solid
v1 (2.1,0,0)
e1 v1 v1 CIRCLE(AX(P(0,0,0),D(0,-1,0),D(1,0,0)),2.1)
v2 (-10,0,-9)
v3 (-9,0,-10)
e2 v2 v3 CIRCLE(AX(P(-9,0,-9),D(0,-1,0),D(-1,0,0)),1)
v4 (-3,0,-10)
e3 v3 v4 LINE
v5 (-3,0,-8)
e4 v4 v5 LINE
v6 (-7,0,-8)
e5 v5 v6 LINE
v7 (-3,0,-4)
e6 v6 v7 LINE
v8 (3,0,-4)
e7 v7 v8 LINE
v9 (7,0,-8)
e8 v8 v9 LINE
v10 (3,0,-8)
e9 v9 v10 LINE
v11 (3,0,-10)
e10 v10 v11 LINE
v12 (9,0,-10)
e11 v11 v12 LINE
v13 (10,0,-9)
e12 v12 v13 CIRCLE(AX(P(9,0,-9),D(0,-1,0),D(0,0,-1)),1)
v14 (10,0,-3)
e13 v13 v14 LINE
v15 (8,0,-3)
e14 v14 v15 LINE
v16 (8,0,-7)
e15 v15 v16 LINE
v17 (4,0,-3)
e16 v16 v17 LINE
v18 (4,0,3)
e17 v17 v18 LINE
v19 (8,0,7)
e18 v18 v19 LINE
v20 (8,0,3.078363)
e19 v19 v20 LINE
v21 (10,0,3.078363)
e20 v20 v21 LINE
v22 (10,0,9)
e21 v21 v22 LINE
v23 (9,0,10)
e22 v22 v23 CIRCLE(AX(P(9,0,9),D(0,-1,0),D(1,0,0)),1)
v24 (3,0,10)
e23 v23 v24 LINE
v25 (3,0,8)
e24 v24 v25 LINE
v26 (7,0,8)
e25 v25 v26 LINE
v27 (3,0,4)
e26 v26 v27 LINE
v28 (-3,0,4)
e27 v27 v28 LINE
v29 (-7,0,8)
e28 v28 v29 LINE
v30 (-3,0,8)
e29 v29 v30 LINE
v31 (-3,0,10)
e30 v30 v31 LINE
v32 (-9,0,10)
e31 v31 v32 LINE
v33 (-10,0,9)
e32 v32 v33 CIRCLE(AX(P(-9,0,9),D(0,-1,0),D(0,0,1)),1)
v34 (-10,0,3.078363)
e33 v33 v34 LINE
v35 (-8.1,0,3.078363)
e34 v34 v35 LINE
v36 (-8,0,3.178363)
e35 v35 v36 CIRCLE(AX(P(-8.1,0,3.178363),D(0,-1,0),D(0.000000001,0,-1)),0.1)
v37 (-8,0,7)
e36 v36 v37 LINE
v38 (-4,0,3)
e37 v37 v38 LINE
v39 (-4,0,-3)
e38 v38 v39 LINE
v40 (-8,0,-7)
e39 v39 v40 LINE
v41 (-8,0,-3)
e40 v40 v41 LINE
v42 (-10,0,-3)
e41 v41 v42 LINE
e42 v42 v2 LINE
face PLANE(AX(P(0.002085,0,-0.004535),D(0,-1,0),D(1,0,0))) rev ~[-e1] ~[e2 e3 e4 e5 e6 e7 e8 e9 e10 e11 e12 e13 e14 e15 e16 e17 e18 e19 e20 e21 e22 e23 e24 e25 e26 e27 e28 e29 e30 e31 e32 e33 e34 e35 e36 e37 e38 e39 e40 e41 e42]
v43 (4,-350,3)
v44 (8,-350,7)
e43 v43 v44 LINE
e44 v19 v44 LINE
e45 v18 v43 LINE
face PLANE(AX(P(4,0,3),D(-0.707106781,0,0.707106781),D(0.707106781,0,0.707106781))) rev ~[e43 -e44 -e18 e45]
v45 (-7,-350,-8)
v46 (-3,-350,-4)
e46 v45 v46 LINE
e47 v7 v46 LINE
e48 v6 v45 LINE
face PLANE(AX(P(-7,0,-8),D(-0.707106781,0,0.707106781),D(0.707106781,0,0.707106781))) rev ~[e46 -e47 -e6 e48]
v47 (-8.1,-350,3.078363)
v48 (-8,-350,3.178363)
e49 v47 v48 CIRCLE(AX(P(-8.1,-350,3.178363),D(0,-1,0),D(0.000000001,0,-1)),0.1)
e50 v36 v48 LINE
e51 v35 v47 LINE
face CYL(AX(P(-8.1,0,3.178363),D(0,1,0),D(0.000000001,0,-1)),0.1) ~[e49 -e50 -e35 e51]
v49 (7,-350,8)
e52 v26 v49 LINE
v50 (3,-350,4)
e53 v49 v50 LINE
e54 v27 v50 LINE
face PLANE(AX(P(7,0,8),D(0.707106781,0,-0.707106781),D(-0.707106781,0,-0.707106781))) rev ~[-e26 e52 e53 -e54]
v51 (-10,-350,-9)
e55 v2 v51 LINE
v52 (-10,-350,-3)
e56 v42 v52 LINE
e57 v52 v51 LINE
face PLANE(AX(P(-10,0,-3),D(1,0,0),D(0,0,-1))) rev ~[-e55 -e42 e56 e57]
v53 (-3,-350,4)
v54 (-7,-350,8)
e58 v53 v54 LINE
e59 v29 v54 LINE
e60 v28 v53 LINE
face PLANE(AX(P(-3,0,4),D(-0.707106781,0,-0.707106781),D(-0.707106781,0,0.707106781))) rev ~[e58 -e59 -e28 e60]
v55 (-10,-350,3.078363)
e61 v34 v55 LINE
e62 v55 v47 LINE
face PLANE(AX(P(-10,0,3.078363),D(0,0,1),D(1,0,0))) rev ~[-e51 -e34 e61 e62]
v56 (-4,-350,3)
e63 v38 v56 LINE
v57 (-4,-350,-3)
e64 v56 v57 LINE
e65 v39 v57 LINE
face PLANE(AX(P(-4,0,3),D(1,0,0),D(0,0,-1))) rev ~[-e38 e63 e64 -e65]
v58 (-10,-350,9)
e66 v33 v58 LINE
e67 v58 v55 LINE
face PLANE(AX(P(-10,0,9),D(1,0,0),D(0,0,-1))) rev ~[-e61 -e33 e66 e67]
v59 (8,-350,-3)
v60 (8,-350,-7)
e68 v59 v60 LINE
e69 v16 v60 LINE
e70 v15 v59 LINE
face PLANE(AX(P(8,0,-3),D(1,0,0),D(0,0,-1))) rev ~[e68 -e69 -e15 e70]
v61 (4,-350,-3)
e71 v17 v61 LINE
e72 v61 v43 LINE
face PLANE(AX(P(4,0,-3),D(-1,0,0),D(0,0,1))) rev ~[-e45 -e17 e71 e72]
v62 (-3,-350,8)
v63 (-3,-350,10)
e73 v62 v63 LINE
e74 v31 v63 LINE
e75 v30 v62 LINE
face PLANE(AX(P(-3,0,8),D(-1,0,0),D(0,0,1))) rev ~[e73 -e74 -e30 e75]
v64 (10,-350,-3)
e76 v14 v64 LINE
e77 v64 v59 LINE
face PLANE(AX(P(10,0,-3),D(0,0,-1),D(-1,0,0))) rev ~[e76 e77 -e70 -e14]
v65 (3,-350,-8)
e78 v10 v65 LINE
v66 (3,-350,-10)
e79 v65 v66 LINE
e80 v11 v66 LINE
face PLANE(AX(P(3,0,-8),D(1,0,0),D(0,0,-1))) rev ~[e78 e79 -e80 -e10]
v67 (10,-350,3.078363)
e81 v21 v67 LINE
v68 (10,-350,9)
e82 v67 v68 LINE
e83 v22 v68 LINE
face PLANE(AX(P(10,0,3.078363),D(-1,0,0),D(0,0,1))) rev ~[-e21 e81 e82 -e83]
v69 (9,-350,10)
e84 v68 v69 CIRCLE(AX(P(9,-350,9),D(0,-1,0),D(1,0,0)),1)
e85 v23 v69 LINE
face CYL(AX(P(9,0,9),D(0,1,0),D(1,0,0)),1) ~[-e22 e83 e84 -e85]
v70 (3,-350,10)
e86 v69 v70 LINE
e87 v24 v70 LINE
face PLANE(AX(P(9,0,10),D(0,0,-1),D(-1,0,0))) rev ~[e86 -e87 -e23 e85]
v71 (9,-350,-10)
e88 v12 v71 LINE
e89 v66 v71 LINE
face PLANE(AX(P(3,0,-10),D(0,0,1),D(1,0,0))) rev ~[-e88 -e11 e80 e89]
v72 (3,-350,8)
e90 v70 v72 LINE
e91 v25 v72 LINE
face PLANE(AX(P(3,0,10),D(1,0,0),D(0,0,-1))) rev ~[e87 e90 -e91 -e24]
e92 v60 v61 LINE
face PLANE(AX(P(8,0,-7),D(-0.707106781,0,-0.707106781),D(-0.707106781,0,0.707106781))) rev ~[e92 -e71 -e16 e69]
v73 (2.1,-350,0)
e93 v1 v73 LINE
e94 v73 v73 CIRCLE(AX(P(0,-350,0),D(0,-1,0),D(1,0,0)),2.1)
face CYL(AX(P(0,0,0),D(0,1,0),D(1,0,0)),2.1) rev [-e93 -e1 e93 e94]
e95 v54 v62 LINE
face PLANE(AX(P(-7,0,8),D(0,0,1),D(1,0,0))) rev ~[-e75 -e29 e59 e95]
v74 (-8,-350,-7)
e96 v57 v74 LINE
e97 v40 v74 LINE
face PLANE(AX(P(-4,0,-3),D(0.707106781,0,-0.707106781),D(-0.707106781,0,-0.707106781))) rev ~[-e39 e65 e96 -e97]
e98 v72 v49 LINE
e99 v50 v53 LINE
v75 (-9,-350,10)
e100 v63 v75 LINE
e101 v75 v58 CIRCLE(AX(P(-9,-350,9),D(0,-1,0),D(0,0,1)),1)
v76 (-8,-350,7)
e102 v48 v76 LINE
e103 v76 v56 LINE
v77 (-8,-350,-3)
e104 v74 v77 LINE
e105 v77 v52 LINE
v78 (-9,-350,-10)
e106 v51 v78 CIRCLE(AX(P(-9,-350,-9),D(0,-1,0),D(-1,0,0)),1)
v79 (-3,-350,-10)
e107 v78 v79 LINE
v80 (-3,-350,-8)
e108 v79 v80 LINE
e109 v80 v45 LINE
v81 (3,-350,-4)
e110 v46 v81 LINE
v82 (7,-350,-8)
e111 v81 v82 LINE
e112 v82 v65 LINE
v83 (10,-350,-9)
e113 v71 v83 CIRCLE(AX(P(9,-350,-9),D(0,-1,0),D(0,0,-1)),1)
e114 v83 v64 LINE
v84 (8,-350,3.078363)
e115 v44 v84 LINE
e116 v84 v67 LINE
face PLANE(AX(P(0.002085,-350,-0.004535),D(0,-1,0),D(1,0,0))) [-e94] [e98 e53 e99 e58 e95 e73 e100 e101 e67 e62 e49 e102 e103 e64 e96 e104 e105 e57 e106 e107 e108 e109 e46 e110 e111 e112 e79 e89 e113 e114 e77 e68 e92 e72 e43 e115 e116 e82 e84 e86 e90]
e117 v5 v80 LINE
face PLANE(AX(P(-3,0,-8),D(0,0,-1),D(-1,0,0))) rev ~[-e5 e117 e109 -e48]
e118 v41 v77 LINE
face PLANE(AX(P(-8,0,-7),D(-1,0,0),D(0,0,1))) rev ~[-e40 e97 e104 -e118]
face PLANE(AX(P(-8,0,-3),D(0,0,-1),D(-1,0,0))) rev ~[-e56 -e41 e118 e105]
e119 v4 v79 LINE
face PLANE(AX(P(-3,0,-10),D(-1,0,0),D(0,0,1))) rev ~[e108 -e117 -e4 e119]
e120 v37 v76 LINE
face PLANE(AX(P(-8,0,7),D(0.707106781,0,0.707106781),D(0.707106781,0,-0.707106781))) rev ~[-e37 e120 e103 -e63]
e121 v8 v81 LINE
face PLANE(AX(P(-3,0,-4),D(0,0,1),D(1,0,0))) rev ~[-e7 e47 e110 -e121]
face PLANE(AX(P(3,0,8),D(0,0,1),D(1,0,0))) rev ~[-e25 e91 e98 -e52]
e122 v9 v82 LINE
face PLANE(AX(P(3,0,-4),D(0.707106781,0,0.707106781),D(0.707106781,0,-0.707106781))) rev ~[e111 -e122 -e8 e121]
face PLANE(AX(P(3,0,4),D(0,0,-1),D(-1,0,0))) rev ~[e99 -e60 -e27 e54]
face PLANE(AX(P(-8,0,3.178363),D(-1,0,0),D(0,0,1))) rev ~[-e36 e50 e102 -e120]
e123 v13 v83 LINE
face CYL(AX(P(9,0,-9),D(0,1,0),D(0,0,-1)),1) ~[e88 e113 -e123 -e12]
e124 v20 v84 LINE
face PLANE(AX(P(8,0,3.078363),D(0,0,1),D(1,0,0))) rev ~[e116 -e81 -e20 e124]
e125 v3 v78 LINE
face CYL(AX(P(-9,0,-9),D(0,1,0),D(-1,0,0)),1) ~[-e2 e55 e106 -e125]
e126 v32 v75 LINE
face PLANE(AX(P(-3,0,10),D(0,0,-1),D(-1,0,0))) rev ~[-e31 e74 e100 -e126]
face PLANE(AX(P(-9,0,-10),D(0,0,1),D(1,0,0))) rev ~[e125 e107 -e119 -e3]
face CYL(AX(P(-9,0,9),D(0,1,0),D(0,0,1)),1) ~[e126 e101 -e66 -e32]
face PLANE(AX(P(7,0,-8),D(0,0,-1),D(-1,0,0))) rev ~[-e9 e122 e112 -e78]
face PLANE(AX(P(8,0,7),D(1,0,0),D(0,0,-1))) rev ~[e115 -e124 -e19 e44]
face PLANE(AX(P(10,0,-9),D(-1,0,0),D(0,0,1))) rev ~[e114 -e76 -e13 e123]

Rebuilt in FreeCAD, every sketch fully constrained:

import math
import FreeCAD as App
import Part
import Sketcher
from FreeCAD import Vector

doc = App.newDocument("Part")
body = doc.addObject("PartDesign::Body", "Body")

sketch1 = body.newObject("Sketcher::SketchObject", "Sketch")
sketch1.AttachmentSupport = (doc.getObject("XZ_Plane"), [""])
sketch1.MapMode = "FlatFace"
sketch1.addGeometry([
    Part.ArcOfCircle(Part.Circle(Vector(-9, -9, 0), Vector(0, 0, 1), 1), math.radians(180), math.radians(270)),
    Part.LineSegment(Vector(-9, -10, 0), Vector(-3, -10, 0)),
    Part.LineSegment(Vector(-3, -10, 0), Vector(-3, -8, 0)),
    Part.LineSegment(Vector(-3, -8, 0), Vector(-7, -8, 0)),
    Part.LineSegment(Vector(-7, -8, 0), Vector(-3, -4, 0)),
    Part.LineSegment(Vector(-3, -4, 0), Vector(3, -4, 0)),
    Part.LineSegment(Vector(3, -4, 0), Vector(7, -8, 0)),
    Part.LineSegment(Vector(7, -8, 0), Vector(3, -8, 0)),
    Part.LineSegment(Vector(3, -8, 0), Vector(3, -10, 0)),
    Part.LineSegment(Vector(3, -10, 0), Vector(9, -10, 0)),
    Part.ArcOfCircle(Part.Circle(Vector(9, -9, 0), Vector(0, 0, 1), 1), math.radians(-90), math.radians(0)),
    Part.LineSegment(Vector(10, -9, 0), Vector(10, -3, 0)),
    Part.LineSegment(Vector(10, -3, 0), Vector(8, -3, 0)),
    Part.LineSegment(Vector(8, -3, 0), Vector(8, -7, 0)),
    Part.LineSegment(Vector(8, -7, 0), Vector(4, -3, 0)),
    Part.LineSegment(Vector(4, -3, 0), Vector(4, 3, 0)),
    Part.LineSegment(Vector(4, 3, 0), Vector(8, 7, 0)),
    Part.LineSegment(Vector(8, 7, 0), Vector(8, 3.08, 0)),
    Part.LineSegment(Vector(8, 3.08, 0), Vector(10, 3.08, 0)),
    Part.LineSegment(Vector(10, 3.08, 0), Vector(10, 9, 0)),
    Part.ArcOfCircle(Part.Circle(Vector(9, 9, 0), Vector(0, 0, 1), 1), math.radians(0), math.radians(90)),
    Part.LineSegment(Vector(9, 10, 0), Vector(3, 10, 0)),
    Part.LineSegment(Vector(3, 10, 0), Vector(3, 8, 0)),
    Part.LineSegment(Vector(3, 8, 0), Vector(7, 8, 0)),
    Part.LineSegment(Vector(7, 8, 0), Vector(3, 4, 0)),
    Part.LineSegment(Vector(3, 4, 0), Vector(-3, 4, 0)),
    Part.LineSegment(Vector(-3, 4, 0), Vector(-7, 8, 0)),
    Part.LineSegment(Vector(-7, 8, 0), Vector(-3, 8, 0)),
    Part.LineSegment(Vector(-3, 8, 0), Vector(-3, 10, 0)),
    Part.LineSegment(Vector(-3, 10, 0), Vector(-9, 10, 0)),
    Part.ArcOfCircle(Part.Circle(Vector(-9, 9, 0), Vector(0, 0, 1), 1), math.radians(90), math.radians(180)),
    Part.LineSegment(Vector(-10, 9, 0), Vector(-10, 3.08, 0)),
    Part.LineSegment(Vector(-10, 3.08, 0), Vector(-8.1, 3.08, 0)),
    Part.ArcOfCircle(Part.Circle(Vector(-8.1, 3.18, 0), Vector(0, 0, 1), 0.1), math.radians(-90), math.radians(0)),
    Part.LineSegment(Vector(-8, 3.18, 0), Vector(-8, 7, 0)),
    Part.LineSegment(Vector(-8, 7, 0), Vector(-4, 3, 0)),
    Part.LineSegment(Vector(-4, 3, 0), Vector(-4, -3, 0)),
    Part.LineSegment(Vector(-4, -3, 0), Vector(-8, -7, 0)),
    Part.LineSegment(Vector(-8, -7, 0), Vector(-8, -3, 0)),
    Part.LineSegment(Vector(-8, -3, 0), Vector(-10, -3, 0)),
    Part.LineSegment(Vector(-10, -3, 0), Vector(-10, -9, 0)),
    Part.Circle(Vector(0, 0, 0), Vector(0, 0, 1), 2.1),
], False)
sketch1.addConstraint([
    Sketcher.Constraint("Tangent", 0, 2, 1, 1),
    Sketcher.Constraint("Coincident", 1, 2, 2, 1),
    Sketcher.Constraint("Coincident", 2, 2, 3, 1),
    Sketcher.Constraint("Coincident", 3, 2, 4, 1),
    Sketcher.Constraint("Coincident", 4, 2, 5, 1),
    Sketcher.Constraint("Coincident", 5, 2, 6, 1),
    Sketcher.Constraint("Coincident", 6, 2, 7, 1),
    Sketcher.Constraint("Coincident", 7, 2, 8, 1),
    Sketcher.Constraint("Coincident", 8, 2, 9, 1),
    Sketcher.Constraint("Tangent", 9, 2, 10, 1),
    Sketcher.Constraint("Tangent", 10, 2, 11, 1),
    Sketcher.Constraint("Coincident", 11, 2, 12, 1),
    Sketcher.Constraint("Coincident", 12, 2, 13, 1),
    Sketcher.Constraint("Coincident", 13, 2, 14, 1),
    Sketcher.Constraint("Coincident", 14, 2, 15, 1),
    Sketcher.Constraint("Coincident", 15, 2, 16, 1),
    Sketcher.Constraint("Coincident", 16, 2, 17, 1),
    Sketcher.Constraint("Coincident", 17, 2, 18, 1),
    Sketcher.Constraint("Coincident", 18, 2, 19, 1),
    Sketcher.Constraint("Tangent", 19, 2, 20, 1),
    Sketcher.Constraint("Tangent", 20, 2, 21, 1),
    Sketcher.Constraint("Coincident", 21, 2, 22, 1),
    Sketcher.Constraint("Coincident", 22, 2, 23, 1),
    Sketcher.Constraint("Coincident", 23, 2, 24, 1),
    Sketcher.Constraint("Coincident", 24, 2, 25, 1),
    Sketcher.Constraint("Coincident", 25, 2, 26, 1),
    Sketcher.Constraint("Coincident", 26, 2, 27, 1),
    Sketcher.Constraint("Coincident", 27, 2, 28, 1),
    Sketcher.Constraint("Coincident", 28, 2, 29, 1),
    Sketcher.Constraint("Tangent", 29, 2, 30, 1),
    Sketcher.Constraint("Tangent", 30, 2, 31, 1),
    Sketcher.Constraint("Coincident", 31, 2, 32, 1),
    Sketcher.Constraint("Tangent", 32, 2, 33, 1),
    Sketcher.Constraint("Tangent", 33, 2, 34, 1),
    Sketcher.Constraint("Coincident", 34, 2, 35, 1),
    Sketcher.Constraint("Coincident", 35, 2, 36, 1),
    Sketcher.Constraint("Coincident", 36, 2, 37, 1),
    Sketcher.Constraint("Coincident", 37, 2, 38, 1),
    Sketcher.Constraint("Coincident", 38, 2, 39, 1),
    Sketcher.Constraint("Coincident", 39, 2, 40, 1),
    Sketcher.Constraint("Tangent", 40, 2, 0, 1),
    Sketcher.Constraint("Horizontal", 1),
    Sketcher.Constraint("Vertical", 2),
    Sketcher.Constraint("Horizontal", 3),
    Sketcher.Constraint("Horizontal", 5),
    Sketcher.Constraint("Horizontal", 7),
    Sketcher.Constraint("Vertical", 8),
    Sketcher.Constraint("Horizontal", 9),
    Sketcher.Constraint("Vertical", 11),
    Sketcher.Constraint("Horizontal", 12),
    Sketcher.Constraint("Vertical", 13),
    Sketcher.Constraint("Vertical", 15),
    Sketcher.Constraint("Vertical", 17),
    Sketcher.Constraint("Horizontal", 18),
    Sketcher.Constraint("Vertical", 19),
    Sketcher.Constraint("Horizontal", 21),
    Sketcher.Constraint("Vertical", 22),
    Sketcher.Constraint("Horizontal", 23),
    Sketcher.Constraint("Horizontal", 25),
    Sketcher.Constraint("Horizontal", 27),
    Sketcher.Constraint("Vertical", 28),
    Sketcher.Constraint("Horizontal", 29),
    Sketcher.Constraint("Vertical", 31),
    Sketcher.Constraint("Horizontal", 32),
    Sketcher.Constraint("Vertical", 34),
    Sketcher.Constraint("Vertical", 36),
    Sketcher.Constraint("Vertical", 38),
    Sketcher.Constraint("Horizontal", 39),
    Sketcher.Constraint("Vertical", 40),
    Sketcher.Constraint("Coincident", 41, 3, -1, 1),
    Sketcher.Constraint("Equal", 0, 10),
    Sketcher.Constraint("Equal", 10, 20),
    Sketcher.Constraint("Equal", 20, 30),
    Sketcher.Constraint("Symmetric", 0, 3, 20, 3, -1, 1),
    Sketcher.Constraint("Symmetric", 10, 3, 30, 3, -1, 1),
    Sketcher.Constraint("Symmetric", 2, 2, 22, 2, -1, 1),
    Sketcher.Constraint("Symmetric", 4, 2, 24, 2, -1, 1),
    Sketcher.Constraint("Symmetric", 6, 2, 26, 2, -1, 1),
    Sketcher.Constraint("Symmetric", 13, 2, 34, 2, -1, 1),
    Sketcher.Constraint("Symmetric", 14, 2, 35, 2, -1, 1),
    Sketcher.Constraint("Symmetric", 16, 2, 37, 2, -1, 1),
    Sketcher.Constraint("Symmetric", 0, 3, 10, 3, -2),
    Sketcher.Constraint("Symmetric", 3, 2, 6, 2, -2),
    Sketcher.Constraint("Symmetric", 16, 2, 34, 2, -2),
    Sketcher.Constraint("Perpendicular", 4, 6),
    Sketcher.Constraint("Parallel", 6, 14),
    Sketcher.Constraint("Perpendicular", 14, 16),
    Sketcher.Constraint("Parallel", 16, 24),
    Sketcher.Constraint("Perpendicular", 24, 26),
    Sketcher.Constraint("Perpendicular", 35, 37),
    Sketcher.Constraint("Horizontal", 12, 2, 14, 2),
    Sketcher.Constraint("Horizontal", 18, 2, 31, 2),
    Sketcher.Constraint("Horizontal", 15, 2, 35, 2),
    Sketcher.Constraint("Horizontal", 36, 2, 38, 2),
    Sketcher.Constraint("Vertical", 2, 2, 4, 2),
    Sketcher.Constraint("Vertical", 5, 2, 7, 2),
    Sketcher.Constraint("Vertical", 25, 2, 27, 2),
    Sketcher.Constraint("Equal", 1, 5),
    Sketcher.Constraint("Equal", 39, 2),
    Sketcher.Constraint("Equal", 29, 11),
    Sketcher.Constraint("Equal", 27, 13),
    Sketcher.Constraint("Equal", 11, 15),
    Sketcher.Constraint("Radius", 0, 1.0),
    Sketcher.Constraint("Diameter", 41, 4.2),
    Sketcher.Constraint("Radius", 33, 0.1),
    Sketcher.Constraint("DistanceX", 1, 1, 1, 2, 6.0),
    Sketcher.Constraint("DistanceX", 3, 2, 3, 1, 4.0),
    Sketcher.Constraint("DistanceX", 12, 2, 12, 1, 2.0),
    Sketcher.Constraint("DistanceY", 17, 2, 17, 1, 3.921637),
])
pad1 = body.newObject("PartDesign::Pad", "Pad")
pad1.Profile = sketch1
pad1.Length = 350

doc.recompute()
